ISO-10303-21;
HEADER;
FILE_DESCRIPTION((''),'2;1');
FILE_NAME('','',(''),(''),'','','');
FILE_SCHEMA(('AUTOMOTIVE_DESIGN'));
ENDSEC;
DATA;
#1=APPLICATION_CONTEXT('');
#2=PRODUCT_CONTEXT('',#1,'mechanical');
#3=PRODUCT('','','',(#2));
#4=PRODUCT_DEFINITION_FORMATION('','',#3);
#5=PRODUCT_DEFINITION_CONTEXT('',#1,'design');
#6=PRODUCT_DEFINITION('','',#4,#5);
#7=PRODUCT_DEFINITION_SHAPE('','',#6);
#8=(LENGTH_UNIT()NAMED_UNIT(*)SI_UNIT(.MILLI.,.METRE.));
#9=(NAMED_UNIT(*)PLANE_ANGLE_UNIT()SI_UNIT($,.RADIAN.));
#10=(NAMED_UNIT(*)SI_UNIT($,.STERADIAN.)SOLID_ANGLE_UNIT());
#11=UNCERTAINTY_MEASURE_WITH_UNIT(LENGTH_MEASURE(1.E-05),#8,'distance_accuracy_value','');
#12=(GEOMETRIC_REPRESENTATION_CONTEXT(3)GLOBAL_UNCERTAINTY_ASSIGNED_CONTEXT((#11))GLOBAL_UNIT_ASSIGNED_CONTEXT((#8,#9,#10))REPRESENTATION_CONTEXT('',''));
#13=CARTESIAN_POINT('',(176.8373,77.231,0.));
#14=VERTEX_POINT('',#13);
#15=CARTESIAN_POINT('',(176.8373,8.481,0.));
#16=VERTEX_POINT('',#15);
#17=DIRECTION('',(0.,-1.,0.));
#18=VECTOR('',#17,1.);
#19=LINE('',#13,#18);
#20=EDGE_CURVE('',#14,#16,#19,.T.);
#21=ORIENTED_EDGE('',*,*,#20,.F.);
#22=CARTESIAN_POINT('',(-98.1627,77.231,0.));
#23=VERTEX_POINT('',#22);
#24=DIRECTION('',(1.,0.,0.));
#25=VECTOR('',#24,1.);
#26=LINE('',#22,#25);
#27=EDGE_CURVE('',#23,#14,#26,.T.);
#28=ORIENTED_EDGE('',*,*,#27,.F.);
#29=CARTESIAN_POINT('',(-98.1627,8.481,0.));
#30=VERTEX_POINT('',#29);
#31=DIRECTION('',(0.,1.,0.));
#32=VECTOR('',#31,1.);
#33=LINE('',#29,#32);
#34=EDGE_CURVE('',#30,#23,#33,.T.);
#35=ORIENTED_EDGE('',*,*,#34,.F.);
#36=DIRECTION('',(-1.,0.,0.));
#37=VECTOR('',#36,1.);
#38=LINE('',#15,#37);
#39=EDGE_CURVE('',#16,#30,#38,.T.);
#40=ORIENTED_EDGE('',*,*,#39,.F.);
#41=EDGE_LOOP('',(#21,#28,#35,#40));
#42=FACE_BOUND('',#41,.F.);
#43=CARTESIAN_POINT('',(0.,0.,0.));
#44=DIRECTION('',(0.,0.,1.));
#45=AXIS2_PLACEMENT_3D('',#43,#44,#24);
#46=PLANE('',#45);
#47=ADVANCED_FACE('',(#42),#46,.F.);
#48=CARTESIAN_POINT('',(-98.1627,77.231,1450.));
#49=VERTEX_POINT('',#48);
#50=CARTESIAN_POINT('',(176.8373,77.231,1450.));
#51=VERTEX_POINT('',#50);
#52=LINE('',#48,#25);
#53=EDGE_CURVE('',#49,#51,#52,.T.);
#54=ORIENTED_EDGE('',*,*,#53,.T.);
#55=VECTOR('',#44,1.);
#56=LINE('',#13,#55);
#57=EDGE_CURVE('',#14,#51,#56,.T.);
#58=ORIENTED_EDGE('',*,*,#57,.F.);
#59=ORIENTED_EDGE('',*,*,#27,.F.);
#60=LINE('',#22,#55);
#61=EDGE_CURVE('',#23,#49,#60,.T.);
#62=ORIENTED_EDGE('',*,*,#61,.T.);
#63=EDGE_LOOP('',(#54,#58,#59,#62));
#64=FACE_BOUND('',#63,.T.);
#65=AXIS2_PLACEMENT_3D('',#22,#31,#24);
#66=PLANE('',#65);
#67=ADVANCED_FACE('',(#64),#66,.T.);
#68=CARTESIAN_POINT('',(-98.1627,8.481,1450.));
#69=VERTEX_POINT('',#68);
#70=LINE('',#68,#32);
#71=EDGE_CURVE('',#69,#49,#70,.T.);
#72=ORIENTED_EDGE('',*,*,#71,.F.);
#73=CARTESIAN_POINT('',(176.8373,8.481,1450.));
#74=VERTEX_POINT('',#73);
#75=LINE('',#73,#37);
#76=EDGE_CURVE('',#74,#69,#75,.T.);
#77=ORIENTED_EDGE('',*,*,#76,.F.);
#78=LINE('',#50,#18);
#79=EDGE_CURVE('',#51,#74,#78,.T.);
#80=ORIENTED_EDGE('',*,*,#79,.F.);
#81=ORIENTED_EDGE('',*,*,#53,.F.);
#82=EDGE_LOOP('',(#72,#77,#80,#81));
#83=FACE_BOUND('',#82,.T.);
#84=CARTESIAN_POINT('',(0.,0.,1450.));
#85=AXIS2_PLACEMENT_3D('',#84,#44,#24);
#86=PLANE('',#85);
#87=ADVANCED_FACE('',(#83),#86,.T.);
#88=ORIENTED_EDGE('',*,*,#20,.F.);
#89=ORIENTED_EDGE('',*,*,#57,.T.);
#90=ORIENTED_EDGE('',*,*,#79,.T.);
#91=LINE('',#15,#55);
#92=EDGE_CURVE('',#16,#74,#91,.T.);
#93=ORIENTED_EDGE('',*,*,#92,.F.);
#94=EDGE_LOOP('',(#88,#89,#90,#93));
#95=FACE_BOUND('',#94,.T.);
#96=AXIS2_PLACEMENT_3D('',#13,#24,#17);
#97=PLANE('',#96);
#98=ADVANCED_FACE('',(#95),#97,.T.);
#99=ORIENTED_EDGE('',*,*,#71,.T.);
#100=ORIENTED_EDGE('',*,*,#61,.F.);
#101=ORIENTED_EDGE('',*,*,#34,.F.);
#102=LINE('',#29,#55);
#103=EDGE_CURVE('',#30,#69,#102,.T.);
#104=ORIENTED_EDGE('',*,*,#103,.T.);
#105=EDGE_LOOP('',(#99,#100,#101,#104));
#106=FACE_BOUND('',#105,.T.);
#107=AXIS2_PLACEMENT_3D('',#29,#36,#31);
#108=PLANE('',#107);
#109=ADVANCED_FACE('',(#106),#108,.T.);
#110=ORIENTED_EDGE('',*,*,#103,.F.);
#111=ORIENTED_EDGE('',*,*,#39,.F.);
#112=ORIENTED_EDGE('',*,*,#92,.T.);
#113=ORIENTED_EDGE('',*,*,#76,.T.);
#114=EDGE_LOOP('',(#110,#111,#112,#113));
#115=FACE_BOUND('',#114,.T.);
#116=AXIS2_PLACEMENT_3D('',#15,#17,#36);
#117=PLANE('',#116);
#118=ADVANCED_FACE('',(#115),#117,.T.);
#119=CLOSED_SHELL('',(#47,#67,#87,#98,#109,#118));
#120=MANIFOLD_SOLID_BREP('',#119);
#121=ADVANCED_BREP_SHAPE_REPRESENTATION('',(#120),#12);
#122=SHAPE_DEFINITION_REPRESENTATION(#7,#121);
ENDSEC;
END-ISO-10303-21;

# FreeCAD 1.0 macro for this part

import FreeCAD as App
import Part
import Sketcher
Q = App.Units.Quantity

doc = App.newDocument("Part")
params = doc.addObject("Spreadsheet::Sheet", "Params")
for row, (alias, value) in enumerate([
    ("sketch1_width", "275 mm"),
    ("sketch1_height", "68.75 mm"),
    ("pad1_length", "1450 mm"),
], start=1):
    params.set(f"A{row}", alias)
    params.set(f"B{row}", "=" + value)
    params.setAlias(f"B{row}", alias)

body = doc.addObject("PartDesign::Body", "Body")

sketch1 = body.newObject("Sketcher::SketchObject", "Sketch")
sketch1.AttachmentSupport = (doc.getObject("XY_Plane"), [""])
sketch1.MapMode = "FlatFace"
sketch1.addGeometry([
    Part.LineSegment(App.Vector(177, 77, 0), App.Vector(-98, 77, 0)),
    Part.LineSegment(App.Vector(-98, 77, 0), App.Vector(-98, 8, 0)),
    Part.LineSegment(App.Vector(-98, 8, 0), App.Vector(177, 8, 0)),
    Part.LineSegment(App.Vector(177, 8, 0), App.Vector(177, 77, 0)),
], False)
sketch1.addConstraint([
    Sketcher.Constraint("Coincident", 0, 2, 1, 1),
    Sketcher.Constraint("Coincident", 1, 2, 2, 1),
    Sketcher.Constraint("Coincident", 2, 2, 3, 1),
    Sketcher.Constraint("Coincident", 3, 2, 0, 1),
    Sketcher.Constraint("Horizontal", 0),
    Sketcher.Constraint("Vertical", 1),
    Sketcher.Constraint("Horizontal", 2),
    Sketcher.Constraint("Vertical", 3),
    Sketcher.Constraint("DistanceX", 0, 2, 0, 1, Q("275 mm")),
    Sketcher.Constraint("DistanceY", 1, 2, 1, 1, Q("68.75 mm")),
    Sketcher.Constraint("DistanceY", -1, 1, 0, 2, Q("77.231 mm")),
    Sketcher.Constraint("DistanceX", 0, 2, -1, 1, Q("98.1627 mm")),
])
sketch1.setExpression("Constraints[8]", "Params.sketch1_width")
sketch1.setExpression("Constraints[9]", "Params.sketch1_height")
pad1 = body.newObject("PartDesign::Pad", "Pad")
pad1.Profile = sketch1
pad1.setExpression("Length", "Params.pad1_length")

doc.recompute()
